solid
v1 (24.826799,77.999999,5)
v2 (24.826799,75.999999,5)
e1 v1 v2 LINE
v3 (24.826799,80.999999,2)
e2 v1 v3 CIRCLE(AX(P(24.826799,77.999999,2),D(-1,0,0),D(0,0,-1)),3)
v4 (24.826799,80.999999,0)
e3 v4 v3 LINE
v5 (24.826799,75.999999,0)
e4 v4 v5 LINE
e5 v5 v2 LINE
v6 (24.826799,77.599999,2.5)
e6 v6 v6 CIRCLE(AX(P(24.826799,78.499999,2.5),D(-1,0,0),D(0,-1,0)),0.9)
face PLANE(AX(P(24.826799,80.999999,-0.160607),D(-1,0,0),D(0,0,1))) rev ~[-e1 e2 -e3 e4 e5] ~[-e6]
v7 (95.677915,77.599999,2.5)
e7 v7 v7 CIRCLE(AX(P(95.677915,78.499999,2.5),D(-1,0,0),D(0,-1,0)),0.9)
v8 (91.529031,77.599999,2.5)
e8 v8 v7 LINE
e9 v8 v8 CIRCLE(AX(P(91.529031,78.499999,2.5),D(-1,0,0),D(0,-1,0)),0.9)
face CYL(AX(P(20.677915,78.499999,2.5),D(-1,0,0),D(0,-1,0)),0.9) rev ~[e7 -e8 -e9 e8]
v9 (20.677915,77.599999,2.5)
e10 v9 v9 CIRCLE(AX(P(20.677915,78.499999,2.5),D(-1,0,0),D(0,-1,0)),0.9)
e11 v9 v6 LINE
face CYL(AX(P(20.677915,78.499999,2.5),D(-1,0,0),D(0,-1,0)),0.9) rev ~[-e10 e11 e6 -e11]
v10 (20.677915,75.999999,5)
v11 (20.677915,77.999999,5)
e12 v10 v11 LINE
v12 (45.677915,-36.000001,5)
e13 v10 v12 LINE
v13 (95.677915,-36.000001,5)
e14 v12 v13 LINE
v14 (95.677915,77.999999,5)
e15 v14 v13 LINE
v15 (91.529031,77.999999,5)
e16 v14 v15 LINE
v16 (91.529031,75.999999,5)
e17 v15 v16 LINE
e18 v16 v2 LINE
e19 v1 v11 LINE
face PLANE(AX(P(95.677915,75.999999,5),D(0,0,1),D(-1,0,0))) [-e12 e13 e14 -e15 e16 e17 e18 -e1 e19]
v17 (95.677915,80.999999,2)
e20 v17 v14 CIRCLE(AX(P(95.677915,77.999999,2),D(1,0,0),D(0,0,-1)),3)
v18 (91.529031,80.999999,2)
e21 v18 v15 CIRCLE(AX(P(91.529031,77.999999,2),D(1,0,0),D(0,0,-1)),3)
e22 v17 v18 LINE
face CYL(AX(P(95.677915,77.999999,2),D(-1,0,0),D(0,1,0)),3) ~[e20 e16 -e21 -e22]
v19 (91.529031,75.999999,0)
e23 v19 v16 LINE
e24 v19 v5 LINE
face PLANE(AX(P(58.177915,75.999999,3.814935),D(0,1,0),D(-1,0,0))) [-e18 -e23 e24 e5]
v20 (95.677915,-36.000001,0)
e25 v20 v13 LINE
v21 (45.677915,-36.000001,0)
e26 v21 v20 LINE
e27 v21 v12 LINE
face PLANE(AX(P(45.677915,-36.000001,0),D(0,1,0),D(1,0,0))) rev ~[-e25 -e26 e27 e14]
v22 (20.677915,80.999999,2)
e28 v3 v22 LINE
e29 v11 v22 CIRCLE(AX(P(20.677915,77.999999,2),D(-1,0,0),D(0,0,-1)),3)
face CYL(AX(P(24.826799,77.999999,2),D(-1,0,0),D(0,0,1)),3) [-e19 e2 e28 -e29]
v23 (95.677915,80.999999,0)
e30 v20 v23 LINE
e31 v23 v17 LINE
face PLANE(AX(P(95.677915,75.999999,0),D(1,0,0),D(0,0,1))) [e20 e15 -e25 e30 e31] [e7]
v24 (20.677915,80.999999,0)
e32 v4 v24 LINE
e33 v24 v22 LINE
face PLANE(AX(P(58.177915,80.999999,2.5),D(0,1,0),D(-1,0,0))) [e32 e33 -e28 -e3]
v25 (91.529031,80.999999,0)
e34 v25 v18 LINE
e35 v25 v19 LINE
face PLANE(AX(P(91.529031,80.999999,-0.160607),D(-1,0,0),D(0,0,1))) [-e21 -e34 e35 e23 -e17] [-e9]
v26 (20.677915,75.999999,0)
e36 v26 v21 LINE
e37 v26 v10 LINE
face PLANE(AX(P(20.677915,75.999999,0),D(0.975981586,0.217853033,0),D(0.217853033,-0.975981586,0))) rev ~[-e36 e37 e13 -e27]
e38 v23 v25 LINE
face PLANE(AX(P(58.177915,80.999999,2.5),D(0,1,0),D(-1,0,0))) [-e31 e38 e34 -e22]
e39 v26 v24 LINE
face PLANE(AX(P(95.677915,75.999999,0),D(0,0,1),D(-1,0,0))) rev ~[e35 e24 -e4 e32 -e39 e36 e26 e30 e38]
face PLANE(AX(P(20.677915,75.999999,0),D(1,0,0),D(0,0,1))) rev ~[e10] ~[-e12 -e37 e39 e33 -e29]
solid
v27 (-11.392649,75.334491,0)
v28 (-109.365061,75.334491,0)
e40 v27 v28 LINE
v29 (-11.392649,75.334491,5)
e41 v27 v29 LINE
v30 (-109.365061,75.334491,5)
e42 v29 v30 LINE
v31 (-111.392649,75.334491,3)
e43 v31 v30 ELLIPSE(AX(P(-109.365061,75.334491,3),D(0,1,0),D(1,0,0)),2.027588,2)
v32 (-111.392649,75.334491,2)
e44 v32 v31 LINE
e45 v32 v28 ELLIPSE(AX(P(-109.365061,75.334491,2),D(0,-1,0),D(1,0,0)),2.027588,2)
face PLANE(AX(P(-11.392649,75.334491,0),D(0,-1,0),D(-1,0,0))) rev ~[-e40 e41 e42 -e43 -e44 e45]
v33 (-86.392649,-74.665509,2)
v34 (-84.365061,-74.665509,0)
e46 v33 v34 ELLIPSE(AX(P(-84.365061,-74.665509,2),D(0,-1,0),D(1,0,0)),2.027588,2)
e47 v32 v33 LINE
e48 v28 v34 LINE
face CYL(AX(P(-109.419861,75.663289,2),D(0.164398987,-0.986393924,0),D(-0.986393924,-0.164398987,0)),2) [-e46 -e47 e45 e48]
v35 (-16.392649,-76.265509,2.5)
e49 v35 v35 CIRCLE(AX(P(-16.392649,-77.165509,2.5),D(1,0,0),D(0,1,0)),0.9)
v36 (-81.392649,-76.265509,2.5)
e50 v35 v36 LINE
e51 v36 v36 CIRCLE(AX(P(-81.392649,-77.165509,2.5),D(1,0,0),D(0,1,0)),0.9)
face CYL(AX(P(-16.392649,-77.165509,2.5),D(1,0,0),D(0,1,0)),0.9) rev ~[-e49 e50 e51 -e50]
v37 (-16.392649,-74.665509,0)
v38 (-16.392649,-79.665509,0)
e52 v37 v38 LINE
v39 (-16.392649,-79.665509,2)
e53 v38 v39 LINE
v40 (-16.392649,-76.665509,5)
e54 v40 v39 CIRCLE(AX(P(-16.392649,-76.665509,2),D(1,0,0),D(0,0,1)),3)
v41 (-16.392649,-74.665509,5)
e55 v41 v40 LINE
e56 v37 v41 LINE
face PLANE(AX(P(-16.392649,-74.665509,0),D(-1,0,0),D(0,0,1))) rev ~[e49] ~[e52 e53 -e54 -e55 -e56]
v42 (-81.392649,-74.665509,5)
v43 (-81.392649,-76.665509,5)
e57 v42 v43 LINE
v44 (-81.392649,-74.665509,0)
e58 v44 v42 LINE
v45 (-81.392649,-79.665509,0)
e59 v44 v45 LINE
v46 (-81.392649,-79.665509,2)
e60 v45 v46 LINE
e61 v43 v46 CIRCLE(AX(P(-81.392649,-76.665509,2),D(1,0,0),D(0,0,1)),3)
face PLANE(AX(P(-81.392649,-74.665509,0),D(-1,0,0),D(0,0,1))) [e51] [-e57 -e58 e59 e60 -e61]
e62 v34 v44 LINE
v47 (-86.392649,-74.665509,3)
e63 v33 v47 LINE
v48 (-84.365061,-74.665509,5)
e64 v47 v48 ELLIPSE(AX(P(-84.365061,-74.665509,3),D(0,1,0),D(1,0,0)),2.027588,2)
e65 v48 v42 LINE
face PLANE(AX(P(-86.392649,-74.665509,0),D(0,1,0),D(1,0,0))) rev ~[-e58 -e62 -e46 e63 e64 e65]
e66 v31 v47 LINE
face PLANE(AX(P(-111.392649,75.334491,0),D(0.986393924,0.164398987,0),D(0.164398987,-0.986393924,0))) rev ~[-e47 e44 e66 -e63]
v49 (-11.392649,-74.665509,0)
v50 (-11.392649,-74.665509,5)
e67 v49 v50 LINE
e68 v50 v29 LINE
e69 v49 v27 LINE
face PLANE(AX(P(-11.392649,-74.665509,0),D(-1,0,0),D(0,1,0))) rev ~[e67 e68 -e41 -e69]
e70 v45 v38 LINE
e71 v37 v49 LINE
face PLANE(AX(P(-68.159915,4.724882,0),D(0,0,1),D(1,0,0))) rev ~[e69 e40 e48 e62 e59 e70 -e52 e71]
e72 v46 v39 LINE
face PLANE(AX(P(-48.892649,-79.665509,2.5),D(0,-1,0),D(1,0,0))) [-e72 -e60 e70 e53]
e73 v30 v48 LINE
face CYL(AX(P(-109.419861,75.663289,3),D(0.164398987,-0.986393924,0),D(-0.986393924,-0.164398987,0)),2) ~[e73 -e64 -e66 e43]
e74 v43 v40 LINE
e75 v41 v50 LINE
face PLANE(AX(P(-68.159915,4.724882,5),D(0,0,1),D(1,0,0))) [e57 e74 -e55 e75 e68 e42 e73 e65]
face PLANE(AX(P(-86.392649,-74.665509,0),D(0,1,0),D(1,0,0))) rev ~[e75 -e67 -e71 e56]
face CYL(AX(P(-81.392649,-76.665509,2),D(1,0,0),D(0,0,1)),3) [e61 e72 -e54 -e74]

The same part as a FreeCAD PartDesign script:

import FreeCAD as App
import Part
import Sketcher
from FreeCAD import Vector


def edges_at(feature, points):
    """Names of the edges that pass closest to the given points."""
    edges = feature.Shape.Edges
    near = lambda p: min(range(len(edges)), key=lambda i: edges[i].distToShape(Part.Vertex(*p))[0])
    return sorted({f"Edge{near(p) + 1}" for p in points})


def add_polygon(sketch, points):
    """Adds a closed chain of lines whose ends are joined by coincident constraints."""
    first, n = sketch.GeometryCount, len(points)
    for a, b in zip(points, points[1:] + points[:1]):
        sketch.addGeometry(Part.LineSegment(App.Vector(*a, 0), App.Vector(*b, 0)), False)
    for i in range(n):
        sketch.addConstraint(Sketcher.Constraint("Coincident", first + i, 2, first + (i + 1) % n, 1))

doc = App.newDocument("Part")
body = doc.addObject("PartDesign::Body", "Body")

sketch1 = body.newObject("Sketcher::SketchObject", "Sketch")
sketch1.AttachmentSupport = (doc.getObject("XY_Plane"), [""])
sketch1.MapMode = "FlatFace"
add_polygon(sketch1, [(21, 76), (46, -36), (96, -36), (96, 76)])
sketch1.addConstraint([
    Sketcher.Constraint("Horizontal", 1),
    Sketcher.Constraint("Vertical", 2),
    Sketcher.Constraint("Horizontal", 3),
    Sketcher.Constraint("DistanceX", 1, 1, 1, 2, 50.0),
    Sketcher.Constraint("DistanceX", 3, 2, 3, 1, 75.0),
    Sketcher.Constraint("DistanceY", 2, 1, 2, 2, 112.0),
    Sketcher.Constraint("DistanceY", 0, 2, -1, 1, 36.000001),
    Sketcher.Constraint("DistanceX", -1, 1, 0, 2, 45.677915),
])
pad1 = body.newObject("PartDesign::Pad", "Pad")
pad1.Profile = sketch1
pad1.Length = 5

sketch2 = body.newObject("Sketcher::SketchObject", "Sketch001")
sketch2.AttachmentSupport = (doc.getObject("XZ_Plane"), [""])
sketch2.MapMode = "FlatFace"
sketch2.AttachmentOffset = App.Placement(Vector(0, 0, -75.999999), App.Rotation())
add_polygon(sketch2, [(96, 5), (96, 0), (21, 0), (21, 5)])
sketch2.addConstraint([
    Sketcher.Constraint("Vertical", 0),
    Sketcher.Constraint("Horizontal", 1),
    Sketcher.Constraint("Vertical", 2),
    Sketcher.Constraint("Horizontal", 3),
    Sketcher.Constraint("PointOnObject", 0, 2, -1),
    Sketcher.Constraint("DistanceX", 1, 2, 1, 1, 75.0),
    Sketcher.Constraint("DistanceY", 0, 2, 0, 1, 5.0),
    Sketcher.Constraint("DistanceX", -1, 1, 0, 2, 95.677915),
])
pad2 = body.newObject("PartDesign::Pad", "Pad001")
pad2.Profile = sketch2
pad2.Length = 5
pad2.Reversed = True

sketch3 = body.newObject("Sketcher::SketchObject", "Sketch002")
sketch3.AttachmentSupport = (doc.getObject("XZ_Plane"), [""])
sketch3.MapMode = "FlatFace"
sketch3.AttachmentOffset = App.Placement(Vector(0, 0, -80.999999), App.Rotation())
add_polygon(sketch3, [(92, 8), (92, 0), (25, 0), (25, 8)])
sketch3.addConstraint([
    Sketcher.Constraint("Vertical", 0),
    Sketcher.Constraint("Horizontal", 1),
    Sketcher.Constraint("Vertical", 2),
    Sketcher.Constraint("Horizontal", 3),
    Sketcher.Constraint("DistanceX", 1, 2, 1, 1, 66.702231),
    Sketcher.Constraint("DistanceX", -1, 1, 1, 2, 24.826799),
    Sketcher.Constraint("DistanceY", 0, 2, 0, 1, 7.951083),
    Sketcher.Constraint("DistanceY", 0, 2, -1, 1, 0.160607),
])
pocket1 = body.newObject("PartDesign::Pocket", "Pocket")
pocket1.Profile = sketch3
pocket1.Length = 5
pocket1.Reversed = True

sketch4 = body.newObject("Sketcher::SketchObject", "Sketch003")
sketch4.AttachmentSupport = (doc.getObject("YZ_Plane"), [""])
sketch4.MapMode = "FlatFace"
sketch4.AttachmentOffset = App.Placement(Vector(0, 0, 20.677915), App.Rotation())
sketch4.addGeometry(Part.Circle(Vector(78.5, 2.5, 0), Vector(0, 0, 1), 0.9), False)
sketch4.addConstraint([
    Sketcher.Constraint("Diameter", 0, 1.8),
    Sketcher.Constraint("DistanceX", -1, 1, 0, 3, 78.499999),
    Sketcher.Constraint("DistanceY", -1, 1, 0, 3, 2.5),
])
pocket2 = body.newObject("PartDesign::Pocket", "Pocket001")
pocket2.Profile = sketch4
pocket2.Length = 125
pocket2.Reversed = True
doc.recompute()

fillet = body.newObject("PartDesign::Fillet", "Fillet")
fillet.Base = (pocket2, edges_at(pocket2, [(22.752, 81, 5), (93.603, 81, 5)]))
fillet.Radius = 3
body2 = doc.addObject("PartDesign::Body", "Body001")

sketch5 = body2.newObject("Sketcher::SketchObject", "Sketch004")
sketch5.AttachmentSupport = (doc.getObject("XY_Plane001"), [""])
sketch5.MapMode = "FlatFace"
add_polygon(sketch5, [(-111, 75), (-86, -75), (-11, -75), (-11, 75)])
sketch5.addConstraint([
    Sketcher.Constraint("Horizontal", 1),
    Sketcher.Constraint("Vertical", 2),
    Sketcher.Constraint("Horizontal", 3),
    Sketcher.Constraint("DistanceX", 1, 1, 1, 2, 75.0),
    Sketcher.Constraint("DistanceX", 3, 2, 3, 1, 100.0),
    Sketcher.Constraint("DistanceY", 2, 1, 2, 2, 150.0),
    Sketcher.Constraint("DistanceX", 0, 2, -1, 1, 86.392649),
    Sketcher.Constraint("DistanceY", 0, 2, -1, 1, 74.665509),
])
pad3 = body2.newObject("PartDesign::Pad", "Pad002")
pad3.Profile = sketch5
pad3.Length = 5
doc.recompute()

fillet2 = body2.newObject("PartDesign::Fillet", "Fillet001")
fillet2.Base = (pad3, edges_at(pad3, [(-98.893, 0.334, 5), (-98.893, 0.334, 0)]))
fillet2.Radius = 2

sketch6 = body2.newObject("Sketcher::SketchObject", "Sketch005")
sketch6.AttachmentSupport = (doc.getObject("XZ_Plane001"), [""])
sketch6.MapMode = "FlatFace"
sketch6.AttachmentOffset = App.Placement(Vector(0, 0, 74.665509), App.Rotation())
add_polygon(sketch6, [(-81, 5), (-81, 0), (-16, 0), (-16, 5)])
sketch6.addConstraint([
    Sketcher.Constraint("Vertical", 0),
    Sketcher.Constraint("Horizontal", 1),
    Sketcher.Constraint("Vertical", 2),
    Sketcher.Constraint("Horizontal", 3),
    Sketcher.Constraint("PointOnObject", 0, 2, -1),
    Sketcher.Constraint("DistanceX", 1, 1, 1, 2, 65.0),
    Sketcher.Constraint("DistanceY", 0, 2, 0, 1, 5.0),
    Sketcher.Constraint("DistanceX", 0, 2, -1, 1, 81.392649),
])
pad4 = body2.newObject("PartDesign::Pad", "Pad003")
pad4.Profile = sketch6
pad4.Length = 5

sketch7 = body2.newObject("Sketcher::SketchObject", "Sketch006")
sketch7.AttachmentSupport = (doc.getObject("YZ_Plane001"), [""])
sketch7.MapMode = "FlatFace"
sketch7.AttachmentOffset = App.Placement(Vector(0, 0, -16.392649), App.Rotation())
sketch7.addGeometry(Part.Circle(Vector(-77.2, 2.5, 0), Vector(0, 0, 1), 0.9), False)
sketch7.addConstraint([
    Sketcher.Constraint("Diameter", 0, 1.8),
    Sketcher.Constraint("DistanceY", -1, 1, 0, 3, 2.5),
    Sketcher.Constraint("DistanceX", 0, 3, -1, 1, 77.165509),
])
pocket3 = body2.newObject("PartDesign::Pocket", "Pocket002")
pocket3.Profile = sketch7
pocket3.Length = 100
doc.recompute()

fillet3 = body2.newObject("PartDesign::Fillet", "Fillet002")
fillet3.Base = (pocket3, edges_at(pocket3, [(-48.893, -79.666, 5)]))
fillet3.Radius = 3

doc.recompute()
